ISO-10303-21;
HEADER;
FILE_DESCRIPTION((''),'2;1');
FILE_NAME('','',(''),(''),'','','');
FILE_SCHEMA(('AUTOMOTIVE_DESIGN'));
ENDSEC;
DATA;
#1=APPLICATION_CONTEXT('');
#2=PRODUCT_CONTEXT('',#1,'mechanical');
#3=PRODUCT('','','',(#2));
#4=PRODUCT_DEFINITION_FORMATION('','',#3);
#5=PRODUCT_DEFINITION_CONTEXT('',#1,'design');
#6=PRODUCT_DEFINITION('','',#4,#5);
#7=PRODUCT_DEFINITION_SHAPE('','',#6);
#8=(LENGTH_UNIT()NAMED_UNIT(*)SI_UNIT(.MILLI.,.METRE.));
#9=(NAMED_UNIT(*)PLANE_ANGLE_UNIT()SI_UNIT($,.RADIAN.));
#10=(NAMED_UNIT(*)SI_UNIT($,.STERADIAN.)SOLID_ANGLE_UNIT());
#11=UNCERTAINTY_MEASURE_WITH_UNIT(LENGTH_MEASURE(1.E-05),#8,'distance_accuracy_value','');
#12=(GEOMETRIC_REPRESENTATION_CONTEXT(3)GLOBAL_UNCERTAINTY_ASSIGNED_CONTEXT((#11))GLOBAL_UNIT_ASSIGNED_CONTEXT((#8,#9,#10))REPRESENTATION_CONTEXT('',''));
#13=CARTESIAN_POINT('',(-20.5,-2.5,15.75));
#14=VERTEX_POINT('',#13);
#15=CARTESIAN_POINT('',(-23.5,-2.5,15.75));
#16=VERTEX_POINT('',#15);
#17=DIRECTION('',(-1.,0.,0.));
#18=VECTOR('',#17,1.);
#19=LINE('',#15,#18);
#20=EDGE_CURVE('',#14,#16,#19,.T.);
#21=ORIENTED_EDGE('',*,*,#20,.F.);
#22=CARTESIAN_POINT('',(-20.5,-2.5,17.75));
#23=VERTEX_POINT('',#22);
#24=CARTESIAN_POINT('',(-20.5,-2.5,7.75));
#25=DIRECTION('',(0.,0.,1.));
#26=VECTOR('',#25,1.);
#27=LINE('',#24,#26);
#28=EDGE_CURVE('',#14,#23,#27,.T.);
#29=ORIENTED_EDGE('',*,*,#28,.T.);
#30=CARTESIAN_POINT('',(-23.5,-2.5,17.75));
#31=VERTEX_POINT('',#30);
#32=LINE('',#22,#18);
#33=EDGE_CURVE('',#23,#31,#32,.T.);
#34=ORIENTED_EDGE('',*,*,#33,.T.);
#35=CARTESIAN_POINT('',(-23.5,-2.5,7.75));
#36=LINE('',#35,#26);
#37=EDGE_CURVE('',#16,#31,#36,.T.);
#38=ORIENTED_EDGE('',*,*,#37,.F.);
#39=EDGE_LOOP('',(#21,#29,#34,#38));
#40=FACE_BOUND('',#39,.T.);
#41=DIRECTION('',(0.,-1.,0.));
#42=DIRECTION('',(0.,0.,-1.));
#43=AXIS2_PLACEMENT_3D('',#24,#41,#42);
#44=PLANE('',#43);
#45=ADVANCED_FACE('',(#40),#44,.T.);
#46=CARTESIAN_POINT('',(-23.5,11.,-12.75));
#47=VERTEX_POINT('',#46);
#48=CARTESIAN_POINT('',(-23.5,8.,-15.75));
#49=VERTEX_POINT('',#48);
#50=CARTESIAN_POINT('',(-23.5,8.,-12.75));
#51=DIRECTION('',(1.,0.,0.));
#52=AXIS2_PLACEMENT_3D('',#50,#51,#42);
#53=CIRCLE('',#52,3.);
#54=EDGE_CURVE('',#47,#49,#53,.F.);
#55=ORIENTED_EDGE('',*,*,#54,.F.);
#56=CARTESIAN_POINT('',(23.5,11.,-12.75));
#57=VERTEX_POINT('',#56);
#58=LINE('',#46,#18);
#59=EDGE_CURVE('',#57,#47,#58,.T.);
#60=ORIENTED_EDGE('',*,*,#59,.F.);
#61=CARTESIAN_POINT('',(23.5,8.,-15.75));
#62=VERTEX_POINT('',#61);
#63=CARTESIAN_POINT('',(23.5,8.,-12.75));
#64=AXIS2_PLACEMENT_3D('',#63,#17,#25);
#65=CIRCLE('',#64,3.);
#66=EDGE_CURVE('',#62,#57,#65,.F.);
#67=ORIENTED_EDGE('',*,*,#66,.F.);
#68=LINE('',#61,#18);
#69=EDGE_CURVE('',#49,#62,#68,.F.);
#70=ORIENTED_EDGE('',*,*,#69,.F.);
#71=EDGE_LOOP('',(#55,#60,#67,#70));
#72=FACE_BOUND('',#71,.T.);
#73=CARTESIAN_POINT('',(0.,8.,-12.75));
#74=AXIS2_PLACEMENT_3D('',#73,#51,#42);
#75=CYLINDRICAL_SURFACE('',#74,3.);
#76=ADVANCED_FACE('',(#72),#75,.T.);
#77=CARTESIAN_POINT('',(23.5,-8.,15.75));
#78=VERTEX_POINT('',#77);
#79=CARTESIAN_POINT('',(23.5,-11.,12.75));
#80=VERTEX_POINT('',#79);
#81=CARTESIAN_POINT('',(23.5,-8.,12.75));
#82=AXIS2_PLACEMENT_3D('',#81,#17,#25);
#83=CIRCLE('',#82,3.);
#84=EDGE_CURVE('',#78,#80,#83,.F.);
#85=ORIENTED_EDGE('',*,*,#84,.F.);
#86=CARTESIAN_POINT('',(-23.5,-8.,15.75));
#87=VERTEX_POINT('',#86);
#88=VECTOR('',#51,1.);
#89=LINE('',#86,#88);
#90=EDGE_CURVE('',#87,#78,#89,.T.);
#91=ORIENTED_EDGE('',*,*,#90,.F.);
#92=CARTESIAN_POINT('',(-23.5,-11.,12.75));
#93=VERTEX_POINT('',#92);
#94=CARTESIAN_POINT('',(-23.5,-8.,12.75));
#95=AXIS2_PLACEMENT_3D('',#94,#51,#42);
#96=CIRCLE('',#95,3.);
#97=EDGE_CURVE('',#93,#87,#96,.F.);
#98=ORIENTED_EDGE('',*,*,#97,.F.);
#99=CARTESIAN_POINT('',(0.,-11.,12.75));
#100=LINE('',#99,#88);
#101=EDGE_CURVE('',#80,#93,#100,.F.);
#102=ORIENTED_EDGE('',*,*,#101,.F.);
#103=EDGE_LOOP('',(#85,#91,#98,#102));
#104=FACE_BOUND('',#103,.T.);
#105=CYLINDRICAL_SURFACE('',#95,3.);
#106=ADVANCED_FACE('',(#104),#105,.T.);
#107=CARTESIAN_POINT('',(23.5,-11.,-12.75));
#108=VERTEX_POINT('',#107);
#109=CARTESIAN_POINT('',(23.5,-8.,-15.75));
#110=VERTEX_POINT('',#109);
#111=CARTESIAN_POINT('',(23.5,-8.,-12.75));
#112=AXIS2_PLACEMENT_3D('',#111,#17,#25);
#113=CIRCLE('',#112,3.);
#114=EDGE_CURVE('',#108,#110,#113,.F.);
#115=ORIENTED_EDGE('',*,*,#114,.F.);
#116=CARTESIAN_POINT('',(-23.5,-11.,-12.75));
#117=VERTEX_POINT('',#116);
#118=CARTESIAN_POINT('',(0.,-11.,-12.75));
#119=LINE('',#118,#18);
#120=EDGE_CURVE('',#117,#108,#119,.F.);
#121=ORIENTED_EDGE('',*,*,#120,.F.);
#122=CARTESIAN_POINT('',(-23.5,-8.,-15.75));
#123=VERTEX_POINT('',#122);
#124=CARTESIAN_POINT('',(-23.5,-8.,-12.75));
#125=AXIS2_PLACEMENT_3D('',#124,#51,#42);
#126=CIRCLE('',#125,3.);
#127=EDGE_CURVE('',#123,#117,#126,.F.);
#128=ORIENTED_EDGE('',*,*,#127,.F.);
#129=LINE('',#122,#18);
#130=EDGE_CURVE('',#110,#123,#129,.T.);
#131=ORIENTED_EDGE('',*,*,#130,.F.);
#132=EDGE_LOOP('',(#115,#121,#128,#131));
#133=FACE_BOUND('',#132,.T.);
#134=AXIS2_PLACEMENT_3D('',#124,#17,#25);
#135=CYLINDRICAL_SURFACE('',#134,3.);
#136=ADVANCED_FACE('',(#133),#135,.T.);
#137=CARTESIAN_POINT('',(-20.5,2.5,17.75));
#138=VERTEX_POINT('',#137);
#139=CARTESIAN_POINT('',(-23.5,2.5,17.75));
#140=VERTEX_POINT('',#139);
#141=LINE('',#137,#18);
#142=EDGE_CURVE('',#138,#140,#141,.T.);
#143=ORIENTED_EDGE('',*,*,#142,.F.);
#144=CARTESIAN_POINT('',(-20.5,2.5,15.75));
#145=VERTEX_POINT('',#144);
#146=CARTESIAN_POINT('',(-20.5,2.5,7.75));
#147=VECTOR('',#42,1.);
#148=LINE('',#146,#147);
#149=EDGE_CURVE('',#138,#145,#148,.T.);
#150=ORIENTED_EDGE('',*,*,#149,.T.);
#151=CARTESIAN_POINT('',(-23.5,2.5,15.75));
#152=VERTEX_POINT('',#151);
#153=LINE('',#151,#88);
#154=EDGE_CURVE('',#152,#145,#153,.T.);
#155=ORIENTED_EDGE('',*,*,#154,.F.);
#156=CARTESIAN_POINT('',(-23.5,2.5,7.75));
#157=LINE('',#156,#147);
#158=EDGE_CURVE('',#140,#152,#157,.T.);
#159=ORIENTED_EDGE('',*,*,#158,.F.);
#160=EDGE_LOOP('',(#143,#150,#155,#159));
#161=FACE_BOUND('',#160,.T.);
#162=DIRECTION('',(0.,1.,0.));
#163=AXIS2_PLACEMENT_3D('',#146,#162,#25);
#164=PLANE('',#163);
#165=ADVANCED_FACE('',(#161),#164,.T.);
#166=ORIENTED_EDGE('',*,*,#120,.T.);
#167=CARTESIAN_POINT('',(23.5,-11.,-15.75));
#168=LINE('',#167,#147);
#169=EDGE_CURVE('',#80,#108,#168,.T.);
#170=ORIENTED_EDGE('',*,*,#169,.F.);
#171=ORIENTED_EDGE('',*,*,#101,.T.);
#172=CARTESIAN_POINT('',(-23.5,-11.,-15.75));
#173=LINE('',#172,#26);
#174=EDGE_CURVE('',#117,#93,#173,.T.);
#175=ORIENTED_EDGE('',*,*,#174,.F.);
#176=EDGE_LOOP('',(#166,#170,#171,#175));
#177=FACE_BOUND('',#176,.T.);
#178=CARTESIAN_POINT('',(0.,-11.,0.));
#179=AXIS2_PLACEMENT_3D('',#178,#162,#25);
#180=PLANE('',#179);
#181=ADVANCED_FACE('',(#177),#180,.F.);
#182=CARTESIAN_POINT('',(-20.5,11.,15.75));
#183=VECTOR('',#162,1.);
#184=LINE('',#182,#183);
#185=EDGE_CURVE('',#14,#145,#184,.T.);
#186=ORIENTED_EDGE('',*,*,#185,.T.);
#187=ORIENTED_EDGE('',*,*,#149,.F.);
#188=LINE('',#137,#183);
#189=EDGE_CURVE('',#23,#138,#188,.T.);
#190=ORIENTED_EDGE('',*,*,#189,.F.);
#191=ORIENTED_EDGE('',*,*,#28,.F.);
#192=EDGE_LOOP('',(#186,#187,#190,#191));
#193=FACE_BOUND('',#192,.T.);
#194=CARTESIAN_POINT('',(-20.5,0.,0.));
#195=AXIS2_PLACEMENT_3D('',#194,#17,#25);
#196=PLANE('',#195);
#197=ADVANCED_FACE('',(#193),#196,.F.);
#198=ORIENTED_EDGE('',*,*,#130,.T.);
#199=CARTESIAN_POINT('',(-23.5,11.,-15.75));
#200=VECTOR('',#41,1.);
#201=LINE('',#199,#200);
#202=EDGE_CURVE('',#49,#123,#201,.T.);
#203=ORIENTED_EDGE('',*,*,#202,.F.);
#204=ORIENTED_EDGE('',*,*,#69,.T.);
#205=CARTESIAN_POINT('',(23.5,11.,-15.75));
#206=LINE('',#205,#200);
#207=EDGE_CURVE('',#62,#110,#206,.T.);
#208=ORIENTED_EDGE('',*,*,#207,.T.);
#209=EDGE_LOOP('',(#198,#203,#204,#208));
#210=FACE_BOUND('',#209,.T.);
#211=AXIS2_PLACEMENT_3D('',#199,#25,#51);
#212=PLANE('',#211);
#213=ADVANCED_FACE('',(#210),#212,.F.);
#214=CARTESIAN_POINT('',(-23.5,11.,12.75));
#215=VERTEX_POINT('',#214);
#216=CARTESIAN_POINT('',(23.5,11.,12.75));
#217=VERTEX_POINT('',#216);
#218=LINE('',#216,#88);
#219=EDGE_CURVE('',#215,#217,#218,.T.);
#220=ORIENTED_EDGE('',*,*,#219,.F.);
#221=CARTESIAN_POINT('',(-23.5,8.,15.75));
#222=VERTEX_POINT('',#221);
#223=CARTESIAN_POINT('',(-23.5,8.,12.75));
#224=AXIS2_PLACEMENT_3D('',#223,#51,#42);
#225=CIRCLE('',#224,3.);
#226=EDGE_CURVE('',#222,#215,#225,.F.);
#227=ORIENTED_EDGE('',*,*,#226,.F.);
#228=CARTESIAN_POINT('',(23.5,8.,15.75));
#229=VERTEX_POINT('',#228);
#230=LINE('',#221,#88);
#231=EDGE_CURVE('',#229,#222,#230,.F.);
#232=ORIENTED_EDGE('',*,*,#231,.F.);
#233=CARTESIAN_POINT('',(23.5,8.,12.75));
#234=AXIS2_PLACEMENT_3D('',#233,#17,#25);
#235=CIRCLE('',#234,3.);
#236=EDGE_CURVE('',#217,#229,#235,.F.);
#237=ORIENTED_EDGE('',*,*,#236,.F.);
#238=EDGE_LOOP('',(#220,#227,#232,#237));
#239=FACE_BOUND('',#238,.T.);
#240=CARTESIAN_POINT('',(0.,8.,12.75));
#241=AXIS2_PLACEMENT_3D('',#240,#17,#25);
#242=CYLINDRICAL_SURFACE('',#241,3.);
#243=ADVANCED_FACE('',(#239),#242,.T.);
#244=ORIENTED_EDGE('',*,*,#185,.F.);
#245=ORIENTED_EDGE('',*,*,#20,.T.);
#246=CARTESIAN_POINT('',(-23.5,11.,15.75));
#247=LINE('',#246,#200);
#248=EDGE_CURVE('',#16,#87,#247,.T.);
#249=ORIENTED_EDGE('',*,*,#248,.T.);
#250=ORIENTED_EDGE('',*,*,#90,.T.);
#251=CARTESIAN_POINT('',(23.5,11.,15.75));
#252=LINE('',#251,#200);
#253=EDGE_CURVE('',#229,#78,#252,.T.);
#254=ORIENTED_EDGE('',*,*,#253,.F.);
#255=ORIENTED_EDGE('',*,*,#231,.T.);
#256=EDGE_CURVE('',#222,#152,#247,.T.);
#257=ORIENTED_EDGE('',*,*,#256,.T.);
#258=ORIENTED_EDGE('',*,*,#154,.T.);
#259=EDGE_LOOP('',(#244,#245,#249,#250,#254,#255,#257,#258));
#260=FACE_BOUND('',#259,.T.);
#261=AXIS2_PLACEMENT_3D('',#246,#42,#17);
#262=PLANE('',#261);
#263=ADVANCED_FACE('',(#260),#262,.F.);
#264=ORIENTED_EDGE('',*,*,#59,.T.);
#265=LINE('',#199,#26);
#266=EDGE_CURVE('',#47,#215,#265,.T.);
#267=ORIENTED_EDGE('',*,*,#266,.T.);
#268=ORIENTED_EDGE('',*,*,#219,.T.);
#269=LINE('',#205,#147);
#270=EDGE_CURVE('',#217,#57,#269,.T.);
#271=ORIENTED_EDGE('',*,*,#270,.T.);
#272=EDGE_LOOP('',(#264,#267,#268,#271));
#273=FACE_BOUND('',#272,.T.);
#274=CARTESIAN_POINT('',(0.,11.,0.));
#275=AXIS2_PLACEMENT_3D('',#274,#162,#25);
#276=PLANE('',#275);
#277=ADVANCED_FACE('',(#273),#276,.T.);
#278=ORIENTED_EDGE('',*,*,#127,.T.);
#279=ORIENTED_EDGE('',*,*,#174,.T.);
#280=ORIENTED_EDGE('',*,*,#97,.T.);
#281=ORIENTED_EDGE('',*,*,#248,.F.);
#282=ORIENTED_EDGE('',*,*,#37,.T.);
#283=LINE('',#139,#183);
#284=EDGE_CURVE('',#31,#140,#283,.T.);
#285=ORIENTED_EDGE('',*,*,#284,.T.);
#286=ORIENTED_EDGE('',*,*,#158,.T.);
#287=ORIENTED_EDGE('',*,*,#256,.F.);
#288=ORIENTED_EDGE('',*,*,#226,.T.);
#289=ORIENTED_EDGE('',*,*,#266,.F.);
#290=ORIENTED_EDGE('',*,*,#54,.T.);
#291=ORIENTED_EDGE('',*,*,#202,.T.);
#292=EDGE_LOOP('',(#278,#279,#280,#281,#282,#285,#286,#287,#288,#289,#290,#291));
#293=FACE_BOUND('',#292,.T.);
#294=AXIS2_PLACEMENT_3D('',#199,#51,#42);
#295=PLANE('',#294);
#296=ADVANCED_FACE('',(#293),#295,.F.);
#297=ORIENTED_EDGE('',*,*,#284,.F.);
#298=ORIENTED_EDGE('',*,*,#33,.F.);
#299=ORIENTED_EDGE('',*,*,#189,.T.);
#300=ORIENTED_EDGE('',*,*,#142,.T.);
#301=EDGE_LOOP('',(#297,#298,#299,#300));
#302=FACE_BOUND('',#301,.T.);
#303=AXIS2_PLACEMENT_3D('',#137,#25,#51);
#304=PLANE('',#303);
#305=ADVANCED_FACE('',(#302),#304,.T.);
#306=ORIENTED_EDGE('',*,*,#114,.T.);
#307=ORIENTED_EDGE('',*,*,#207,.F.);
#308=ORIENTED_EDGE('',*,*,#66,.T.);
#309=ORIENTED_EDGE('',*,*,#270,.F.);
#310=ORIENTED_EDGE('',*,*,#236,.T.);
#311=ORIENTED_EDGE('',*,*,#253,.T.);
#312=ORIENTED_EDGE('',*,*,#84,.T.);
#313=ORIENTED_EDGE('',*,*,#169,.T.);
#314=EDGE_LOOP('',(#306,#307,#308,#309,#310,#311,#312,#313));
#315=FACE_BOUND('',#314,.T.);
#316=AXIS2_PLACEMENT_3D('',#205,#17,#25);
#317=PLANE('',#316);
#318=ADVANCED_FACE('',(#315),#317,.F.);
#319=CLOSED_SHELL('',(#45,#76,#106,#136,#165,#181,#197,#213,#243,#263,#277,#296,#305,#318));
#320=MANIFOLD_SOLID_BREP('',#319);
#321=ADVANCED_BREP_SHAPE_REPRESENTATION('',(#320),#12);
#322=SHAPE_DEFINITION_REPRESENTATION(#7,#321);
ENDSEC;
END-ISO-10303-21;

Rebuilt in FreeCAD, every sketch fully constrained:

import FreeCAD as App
import Part
import Sketcher


def edges_at(feature, points):
    """Names of the edges that pass closest to the given points."""
    edges = feature.Shape.Edges
    near = lambda p: min(range(len(edges)), key=lambda i: edges[i].distToShape(Part.Vertex(*p))[0])
    return sorted({f"Edge{near(p) + 1}" for p in points})


def add_polygon(sketch, points):
    """Adds a closed chain of lines whose ends are joined by coincident constraints."""
    first, n = sketch.GeometryCount, len(points)
    for a, b in zip(points, points[1:] + points[:1]):
        sketch.addGeometry(Part.LineSegment(App.Vector(*a, 0), App.Vector(*b, 0)), False)
    for i in range(n):
        sketch.addConstraint(Sketcher.Constraint("Coincident", first + i, 2, first + (i + 1) % n, 1))

doc = App.newDocument("Part")
params = doc.addObject("Spreadsheet::Sheet", "Params")
for row, (alias, value) in enumerate([
    ("sketch1_width", "47 mm"),
    ("sketch1_height", "31.5 mm"),
    ("pad1_length", "22 mm"),
    ("fillet_radius", "3 mm"),
    ("sketch2_width", "5 mm"),
    ("sketch2_height", "10 mm"),
    ("pad2_length", "3 mm"),
], start=1):
    params.set(f"A{row}", alias)
    params.set(f"B{row}", "=" + value)
    params.setAlias(f"B{row}", alias)

body = doc.addObject("PartDesign::Body", "Body")

# Sketch on XZ plane
sketch1 = body.newObject("Sketcher::SketchObject", "Sketch")
sketch1.AttachmentSupport = (doc.getObject("XZ_Plane"), [""])
sketch1.MapMode = "FlatFace"
add_polygon(sketch1, [(-24, -16), (-24, 16), (24, 16), (24, -16)])  # lines 0-3
sketch1.addConstraint(Sketcher.Constraint("Vertical", 0))
sketch1.addConstraint(Sketcher.Constraint("Horizontal", 1))
sketch1.addConstraint(Sketcher.Constraint("Vertical", 2))
sketch1.addConstraint(Sketcher.Constraint("Horizontal", 3))
sketch1.addConstraint(Sketcher.Constraint("Symmetric", 0, 2, 2, 2, -1, 1))
sketch1.addConstraint(Sketcher.Constraint("DistanceX", 1, 1, 1, 2, 47.0))
sketch1.addConstraint(Sketcher.Constraint("DistanceY", 0, 1, 0, 2, 31.5))
sketch1.setExpression("Constraints[9]", "Params.sketch1_width")
sketch1.setExpression("Constraints[10]", "Params.sketch1_height")
pad1 = body.newObject("PartDesign::Pad", "Pad")
pad1.Profile = sketch1
pad1.setExpression("Length", "Params.pad1_length")
pad1.Midplane = True
doc.recompute()

fillet = body.newObject("PartDesign::Fillet", "Fillet")
fillet.Base = (pad1, edges_at(pad1, [
    (0, 11, 15.75),
    (0, -11, 15.75),
    (0, -11, -15.75),
    (0, 11, -15.75),
]))
fillet.setExpression("Radius", "Params.fillet_radius")

# Sketch on YZ plane
sketch2 = body.newObject("Sketcher::SketchObject", "Sketch001")
sketch2.AttachmentSupport = (doc.getObject("YZ_Plane"), [""])
sketch2.MapMode = "FlatFace"
sketch2.AttachmentOffset = App.Placement(App.Vector(0, 0, -23.5), App.Rotation())
add_polygon(sketch2, [(2, 8), (-2, 8), (-2, 18), (2, 18)])  # lines 0-3
sketch2.addConstraint(Sketcher.Constraint("Horizontal", 0))
sketch2.addConstraint(Sketcher.Constraint("Vertical", 1))
sketch2.addConstraint(Sketcher.Constraint("Horizontal", 2))
sketch2.addConstraint(Sketcher.Constraint("Vertical", 3))
sketch2.addConstraint(Sketcher.Constraint("DistanceX", 0, 2, 0, 1, 5.0))
sketch2.addConstraint(Sketcher.Constraint("DistanceY", 1, 1, 1, 2, 10.0))
sketch2.addConstraint(Sketcher.Constraint("DistanceX", 0, 2, -1, 1, 2.5))
sketch2.addConstraint(Sketcher.Constraint("DistanceY", -1, 1, 0, 2, 7.75))
sketch2.setExpression("Constraints[8]", "Params.sketch2_width")
sketch2.setExpression("Constraints[9]", "Params.sketch2_height")
pad2 = body.newObject("PartDesign::Pad", "Pad001")
pad2.Profile = sketch2
pad2.setExpression("Length", "Params.pad2_length")

doc.recompute()
